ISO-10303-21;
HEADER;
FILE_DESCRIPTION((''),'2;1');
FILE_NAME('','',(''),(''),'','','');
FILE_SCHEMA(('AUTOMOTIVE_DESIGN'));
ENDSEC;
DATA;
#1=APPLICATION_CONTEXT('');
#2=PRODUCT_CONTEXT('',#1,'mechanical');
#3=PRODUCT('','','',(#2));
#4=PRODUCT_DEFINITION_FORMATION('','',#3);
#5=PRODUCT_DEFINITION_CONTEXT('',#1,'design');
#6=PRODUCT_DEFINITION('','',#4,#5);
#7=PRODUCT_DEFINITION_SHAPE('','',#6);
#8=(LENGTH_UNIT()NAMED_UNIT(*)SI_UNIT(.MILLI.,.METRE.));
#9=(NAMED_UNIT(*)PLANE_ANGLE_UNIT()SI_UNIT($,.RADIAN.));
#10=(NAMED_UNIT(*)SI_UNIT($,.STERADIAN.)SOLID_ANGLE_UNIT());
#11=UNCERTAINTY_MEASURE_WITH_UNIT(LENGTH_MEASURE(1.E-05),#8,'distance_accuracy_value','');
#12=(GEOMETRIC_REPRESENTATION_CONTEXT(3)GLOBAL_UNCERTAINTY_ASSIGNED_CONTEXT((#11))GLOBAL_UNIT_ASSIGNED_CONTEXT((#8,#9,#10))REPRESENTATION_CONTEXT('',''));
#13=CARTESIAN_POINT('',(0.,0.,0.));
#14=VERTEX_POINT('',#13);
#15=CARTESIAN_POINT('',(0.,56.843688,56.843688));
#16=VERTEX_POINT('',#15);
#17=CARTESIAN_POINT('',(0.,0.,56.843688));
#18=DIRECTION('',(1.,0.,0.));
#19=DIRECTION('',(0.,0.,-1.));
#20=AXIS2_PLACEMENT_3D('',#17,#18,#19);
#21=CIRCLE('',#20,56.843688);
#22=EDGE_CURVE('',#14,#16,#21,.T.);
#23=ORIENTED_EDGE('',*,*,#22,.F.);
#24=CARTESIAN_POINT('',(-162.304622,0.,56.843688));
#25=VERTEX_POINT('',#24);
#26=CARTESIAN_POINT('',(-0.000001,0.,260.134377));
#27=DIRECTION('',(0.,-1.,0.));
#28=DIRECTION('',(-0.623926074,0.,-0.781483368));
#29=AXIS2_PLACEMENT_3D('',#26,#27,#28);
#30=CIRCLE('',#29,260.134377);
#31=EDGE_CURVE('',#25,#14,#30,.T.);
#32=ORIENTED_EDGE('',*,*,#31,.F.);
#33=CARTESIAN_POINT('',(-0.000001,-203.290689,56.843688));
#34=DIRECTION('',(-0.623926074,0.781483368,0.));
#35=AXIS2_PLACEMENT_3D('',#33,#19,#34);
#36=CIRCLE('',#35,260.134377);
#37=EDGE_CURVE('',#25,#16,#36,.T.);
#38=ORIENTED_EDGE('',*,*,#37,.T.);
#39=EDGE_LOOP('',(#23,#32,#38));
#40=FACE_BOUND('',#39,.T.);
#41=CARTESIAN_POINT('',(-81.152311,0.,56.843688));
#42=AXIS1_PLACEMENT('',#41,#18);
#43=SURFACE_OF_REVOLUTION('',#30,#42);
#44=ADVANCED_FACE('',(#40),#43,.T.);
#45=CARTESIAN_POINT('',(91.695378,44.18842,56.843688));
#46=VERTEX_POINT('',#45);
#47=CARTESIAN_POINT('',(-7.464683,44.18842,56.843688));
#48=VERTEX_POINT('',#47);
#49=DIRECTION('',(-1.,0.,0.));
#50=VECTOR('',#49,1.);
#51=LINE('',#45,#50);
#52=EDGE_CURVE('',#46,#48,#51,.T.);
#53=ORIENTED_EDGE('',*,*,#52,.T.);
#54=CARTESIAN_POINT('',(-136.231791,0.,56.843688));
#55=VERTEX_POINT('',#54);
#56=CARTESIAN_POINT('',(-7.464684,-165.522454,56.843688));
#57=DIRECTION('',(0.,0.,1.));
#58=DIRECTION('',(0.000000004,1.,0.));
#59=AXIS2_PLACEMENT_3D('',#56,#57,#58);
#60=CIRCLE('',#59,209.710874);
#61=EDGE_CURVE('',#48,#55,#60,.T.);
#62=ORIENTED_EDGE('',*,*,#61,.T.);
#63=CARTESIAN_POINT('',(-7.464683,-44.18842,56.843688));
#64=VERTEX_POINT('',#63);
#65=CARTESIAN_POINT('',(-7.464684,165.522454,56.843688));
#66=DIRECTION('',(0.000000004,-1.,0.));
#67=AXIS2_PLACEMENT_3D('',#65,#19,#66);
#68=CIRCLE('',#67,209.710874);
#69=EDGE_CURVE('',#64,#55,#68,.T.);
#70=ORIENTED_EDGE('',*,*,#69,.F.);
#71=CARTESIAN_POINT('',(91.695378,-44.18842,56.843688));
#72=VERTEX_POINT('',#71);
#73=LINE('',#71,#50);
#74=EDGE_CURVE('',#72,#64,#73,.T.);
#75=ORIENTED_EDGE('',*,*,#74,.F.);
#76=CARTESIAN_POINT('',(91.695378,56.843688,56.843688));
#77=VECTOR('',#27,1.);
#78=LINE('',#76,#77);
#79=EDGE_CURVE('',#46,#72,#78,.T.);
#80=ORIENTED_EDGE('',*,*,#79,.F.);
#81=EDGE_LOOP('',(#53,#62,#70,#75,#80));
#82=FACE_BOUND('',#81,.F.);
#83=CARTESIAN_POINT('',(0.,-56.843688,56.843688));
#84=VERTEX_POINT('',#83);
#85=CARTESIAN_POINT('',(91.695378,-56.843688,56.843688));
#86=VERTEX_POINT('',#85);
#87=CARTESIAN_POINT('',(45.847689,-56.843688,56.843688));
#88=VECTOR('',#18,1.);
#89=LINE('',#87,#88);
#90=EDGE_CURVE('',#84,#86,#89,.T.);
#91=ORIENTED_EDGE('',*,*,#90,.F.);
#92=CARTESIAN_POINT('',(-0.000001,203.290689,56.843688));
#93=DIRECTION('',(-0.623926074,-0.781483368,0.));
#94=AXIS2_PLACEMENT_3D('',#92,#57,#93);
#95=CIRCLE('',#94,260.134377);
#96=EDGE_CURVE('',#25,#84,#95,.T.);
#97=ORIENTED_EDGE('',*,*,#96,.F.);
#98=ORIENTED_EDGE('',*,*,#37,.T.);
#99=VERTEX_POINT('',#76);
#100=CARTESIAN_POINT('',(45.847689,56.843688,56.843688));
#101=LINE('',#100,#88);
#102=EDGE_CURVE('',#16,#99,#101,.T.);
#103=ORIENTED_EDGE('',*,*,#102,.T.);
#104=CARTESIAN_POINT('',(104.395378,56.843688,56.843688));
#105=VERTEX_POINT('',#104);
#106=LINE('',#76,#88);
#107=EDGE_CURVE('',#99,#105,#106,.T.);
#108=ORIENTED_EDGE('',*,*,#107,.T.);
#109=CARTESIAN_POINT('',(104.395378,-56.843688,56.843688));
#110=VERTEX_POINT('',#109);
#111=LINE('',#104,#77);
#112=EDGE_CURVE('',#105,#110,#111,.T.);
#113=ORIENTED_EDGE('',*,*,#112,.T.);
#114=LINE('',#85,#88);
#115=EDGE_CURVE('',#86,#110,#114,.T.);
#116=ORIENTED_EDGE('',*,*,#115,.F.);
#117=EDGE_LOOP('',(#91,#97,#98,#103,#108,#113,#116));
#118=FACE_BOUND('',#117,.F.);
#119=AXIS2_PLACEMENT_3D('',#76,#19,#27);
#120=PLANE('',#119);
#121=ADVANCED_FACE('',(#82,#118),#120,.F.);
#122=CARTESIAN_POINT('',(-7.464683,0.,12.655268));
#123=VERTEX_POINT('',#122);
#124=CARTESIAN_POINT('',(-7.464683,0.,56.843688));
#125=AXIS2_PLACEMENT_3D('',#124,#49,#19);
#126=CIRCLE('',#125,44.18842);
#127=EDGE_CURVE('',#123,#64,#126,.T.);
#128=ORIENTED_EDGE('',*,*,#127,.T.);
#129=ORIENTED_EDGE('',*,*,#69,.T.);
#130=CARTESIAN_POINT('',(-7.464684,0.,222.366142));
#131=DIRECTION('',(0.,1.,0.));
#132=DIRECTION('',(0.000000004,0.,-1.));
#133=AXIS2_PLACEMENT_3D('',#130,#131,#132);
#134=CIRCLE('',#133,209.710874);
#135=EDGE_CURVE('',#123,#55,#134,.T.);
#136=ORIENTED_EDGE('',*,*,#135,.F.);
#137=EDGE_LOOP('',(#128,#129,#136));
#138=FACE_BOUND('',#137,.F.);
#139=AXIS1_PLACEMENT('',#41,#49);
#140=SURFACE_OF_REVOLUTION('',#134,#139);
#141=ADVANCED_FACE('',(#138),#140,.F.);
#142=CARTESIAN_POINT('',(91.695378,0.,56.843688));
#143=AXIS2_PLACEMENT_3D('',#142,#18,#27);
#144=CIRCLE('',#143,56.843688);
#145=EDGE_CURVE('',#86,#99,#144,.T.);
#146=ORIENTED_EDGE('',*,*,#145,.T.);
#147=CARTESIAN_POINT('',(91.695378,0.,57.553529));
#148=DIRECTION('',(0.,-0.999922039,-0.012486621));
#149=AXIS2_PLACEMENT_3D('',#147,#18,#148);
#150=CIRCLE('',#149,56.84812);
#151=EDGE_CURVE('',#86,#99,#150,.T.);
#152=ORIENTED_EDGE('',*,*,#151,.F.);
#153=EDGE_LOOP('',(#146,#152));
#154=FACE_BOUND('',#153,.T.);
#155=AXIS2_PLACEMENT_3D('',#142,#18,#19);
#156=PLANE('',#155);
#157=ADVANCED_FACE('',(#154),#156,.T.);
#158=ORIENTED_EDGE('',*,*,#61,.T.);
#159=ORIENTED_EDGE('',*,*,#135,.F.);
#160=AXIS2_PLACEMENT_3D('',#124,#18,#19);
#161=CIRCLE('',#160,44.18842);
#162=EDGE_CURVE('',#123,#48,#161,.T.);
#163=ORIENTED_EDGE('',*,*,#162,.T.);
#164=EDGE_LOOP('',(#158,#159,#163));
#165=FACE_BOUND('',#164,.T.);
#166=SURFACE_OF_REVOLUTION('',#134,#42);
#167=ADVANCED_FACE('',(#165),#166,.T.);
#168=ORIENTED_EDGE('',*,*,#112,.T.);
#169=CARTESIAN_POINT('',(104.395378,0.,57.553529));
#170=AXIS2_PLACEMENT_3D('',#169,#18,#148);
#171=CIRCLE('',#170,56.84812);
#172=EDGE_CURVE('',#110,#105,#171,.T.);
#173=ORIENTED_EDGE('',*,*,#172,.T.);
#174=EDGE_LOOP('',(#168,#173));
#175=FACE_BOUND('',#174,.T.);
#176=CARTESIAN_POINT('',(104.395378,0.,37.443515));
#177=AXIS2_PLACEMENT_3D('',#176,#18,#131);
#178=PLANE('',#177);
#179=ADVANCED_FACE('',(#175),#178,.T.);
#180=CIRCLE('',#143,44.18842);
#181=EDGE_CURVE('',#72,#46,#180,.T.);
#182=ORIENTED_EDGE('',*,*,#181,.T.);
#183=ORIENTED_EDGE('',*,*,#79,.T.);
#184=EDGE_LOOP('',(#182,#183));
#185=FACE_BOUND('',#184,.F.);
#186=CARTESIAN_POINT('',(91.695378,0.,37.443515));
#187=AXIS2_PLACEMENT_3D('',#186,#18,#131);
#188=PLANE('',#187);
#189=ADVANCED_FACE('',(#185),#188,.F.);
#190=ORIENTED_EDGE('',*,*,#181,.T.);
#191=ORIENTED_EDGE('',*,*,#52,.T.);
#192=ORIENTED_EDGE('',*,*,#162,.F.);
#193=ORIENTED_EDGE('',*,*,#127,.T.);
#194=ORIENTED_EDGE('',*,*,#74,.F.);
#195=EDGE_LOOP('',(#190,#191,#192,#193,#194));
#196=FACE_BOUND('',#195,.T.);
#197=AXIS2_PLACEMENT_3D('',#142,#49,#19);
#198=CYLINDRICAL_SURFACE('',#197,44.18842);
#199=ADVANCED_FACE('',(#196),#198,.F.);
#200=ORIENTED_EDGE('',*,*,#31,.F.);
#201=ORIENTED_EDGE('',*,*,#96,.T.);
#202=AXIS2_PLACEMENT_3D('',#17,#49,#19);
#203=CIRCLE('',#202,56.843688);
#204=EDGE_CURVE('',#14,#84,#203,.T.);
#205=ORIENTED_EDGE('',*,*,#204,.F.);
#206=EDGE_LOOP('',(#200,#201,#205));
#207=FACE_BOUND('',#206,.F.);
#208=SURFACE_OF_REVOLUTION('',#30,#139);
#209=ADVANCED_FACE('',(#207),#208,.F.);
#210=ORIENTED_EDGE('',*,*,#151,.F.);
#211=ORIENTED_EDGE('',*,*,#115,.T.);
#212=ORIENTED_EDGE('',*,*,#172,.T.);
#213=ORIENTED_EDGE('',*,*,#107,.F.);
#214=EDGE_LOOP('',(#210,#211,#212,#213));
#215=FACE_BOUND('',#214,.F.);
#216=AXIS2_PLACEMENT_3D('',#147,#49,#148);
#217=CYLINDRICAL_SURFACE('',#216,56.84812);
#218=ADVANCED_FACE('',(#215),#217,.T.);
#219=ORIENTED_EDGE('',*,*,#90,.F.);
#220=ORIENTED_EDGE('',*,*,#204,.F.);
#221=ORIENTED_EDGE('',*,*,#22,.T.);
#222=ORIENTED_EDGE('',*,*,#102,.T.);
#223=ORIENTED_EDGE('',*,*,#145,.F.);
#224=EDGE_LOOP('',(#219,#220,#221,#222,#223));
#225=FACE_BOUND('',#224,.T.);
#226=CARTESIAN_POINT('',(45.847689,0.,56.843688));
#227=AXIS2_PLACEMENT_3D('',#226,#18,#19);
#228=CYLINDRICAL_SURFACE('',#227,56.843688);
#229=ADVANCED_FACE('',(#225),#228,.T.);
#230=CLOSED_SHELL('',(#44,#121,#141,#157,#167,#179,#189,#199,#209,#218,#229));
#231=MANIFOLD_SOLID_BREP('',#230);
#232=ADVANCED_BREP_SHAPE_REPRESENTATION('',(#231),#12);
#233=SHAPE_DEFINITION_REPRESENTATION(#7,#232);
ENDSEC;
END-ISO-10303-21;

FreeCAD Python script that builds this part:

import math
import FreeCAD as App
import Part
import Sketcher

V = App.Vector
Q = App.Units.Quantity

doc = App.newDocument("Part")
params = doc.addObject("Spreadsheet::Sheet", "Params")
for row, (alias, value) in enumerate([
    ("sketch1_width", "10 in"),
    ("revolution_angle", "90 deg"),
    ("sketch2_width", "10 in"),
    ("revolution2_angle", "90 deg"),
    ("pad1_length", "0.5 in"),
], start=1):
    params.set(f"A{row}", alias)
    params.set(f"B{row}", "=" + value)
    params.setAlias(f"B{row}", alias)

body = doc.addObject("PartDesign::Body", "Body")

sketch1 = doc.addObject("Sketcher::SketchObject", "Sketch")
body.addObject(sketch1)
sketch1.AttachmentSupport = (doc.XZ_Plane, [""])
sketch1.MapMode = "FlatFace"
sketch1.addGeometry(Part.ArcOfCircle(Part.Circle(V(-7, 222, 0), V(0, 0, 1), 210), math.radians(-128), math.radians(-90)), False)
sketch1.addGeometry(Part.LineSegment(V(-136, 57, 0), V(-162, 57, 0)), False)
sketch1.addGeometry(Part.ArcOfCircle(Part.Circle(V(0, 260, 0), V(0, 0, 1), 260), math.radians(-129), math.radians(-90)), False)
sketch1.addGeometry(Part.LineSegment(V(0, 0, 0), V(92, 0, 0)), False)
sketch1.addGeometry(Part.LineSegment(V(92, 0, 0), V(92, 13, 0)), False)
sketch1.addGeometry(Part.LineSegment(V(92, 13, 0), V(-7, 13, 0)), False)
sketch1.addGeometry(Part.LineSegment(V(92, 57, 0), V(-162, 57, 0)), True)
sketch1.addConstraint(Sketcher.Constraint("Coincident", 0, 1, 1, 1))
sketch1.addConstraint(Sketcher.Constraint("Coincident", 1, 2, 2, 1))
sketch1.addConstraint(Sketcher.Constraint("Tangent", 2, 2, 3, 1))
sketch1.addConstraint(Sketcher.Constraint("Coincident", 3, 2, 4, 1))
sketch1.addConstraint(Sketcher.Constraint("Coincident", 4, 2, 5, 1))
sketch1.addConstraint(Sketcher.Constraint("Tangent", 5, 2, 0, 2))
sketch1.addConstraint(Sketcher.Constraint("Horizontal", 1))
sketch1.addConstraint(Sketcher.Constraint("Horizontal", 3))
sketch1.addConstraint(Sketcher.Constraint("Vertical", 4))
sketch1.addConstraint(Sketcher.Constraint("Horizontal", 5))
sketch1.addConstraint(Sketcher.Constraint("Horizontal", 6))
sketch1.addConstraint(Sketcher.Constraint("Coincident", 2, 2, -1, 1))
sketch1.addConstraint(Sketcher.Constraint("Coincident", 6, 2, 1, 2))
sketch1.addConstraint(Sketcher.Constraint("Vertical", 4, 2, 6, 1))
sketch1.addConstraint(Sketcher.Constraint("DistanceX", 6, 2, 6, 1, Q("10 in")))
sketch1.addConstraint(Sketcher.Constraint("Radius", 0, Q("209.710874 mm")))
sketch1.addConstraint(Sketcher.Constraint("Radius", 2, Q("260.134377 mm")))
sketch1.addConstraint(Sketcher.Constraint("DistanceX", 1, 2, 1, 1, Q("26.072831 mm")))
sketch1.addConstraint(Sketcher.Constraint("DistanceX", 3, 1, 3, 2, Q("91.695378 mm")))
sketch1.addConstraint(Sketcher.Constraint("DistanceX", 5, 2, 5, 1, Q("99.160061 mm")))
sketch1.setExpression("Constraints[14]", "Params.sketch1_width")
revolution = doc.addObject("PartDesign::Revolution", "Revolution")
body.addObject(revolution)
revolution.Profile = sketch1
revolution.ReferenceAxis = (sketch1, ["Axis0"])
revolution.setExpression("Angle", "Params.revolution_angle")

sketch2 = doc.addObject("Sketcher::SketchObject", "Sketch001")
body.addObject(sketch2)
sketch2.AttachmentSupport = (doc.XZ_Plane, [""])
sketch2.MapMode = "FlatFace"
sketch2.addGeometry(Part.ArcOfCircle(Part.Circle(V(-7, 222, 0), V(0, 0, 1), 210), math.radians(-128), math.radians(-90)), False)
sketch2.addGeometry(Part.LineSegment(V(-136, 57, 0), V(-162, 57, 0)), False)
sketch2.addGeometry(Part.ArcOfCircle(Part.Circle(V(0, 260, 0), V(0, 0, 1), 260), math.radians(-129), math.radians(-90)), False)
sketch2.addGeometry(Part.LineSegment(V(0, 0, 0), V(92, 0, 0)), False)
sketch2.addGeometry(Part.LineSegment(V(92, 0, 0), V(92, 13, 0)), False)
sketch2.addGeometry(Part.LineSegment(V(92, 13, 0), V(-7, 13, 0)), False)
sketch2.addGeometry(Part.LineSegment(V(-162, 57, 0), V(92, 57, 0)), True)
sketch2.addConstraint(Sketcher.Constraint("Coincident", 0, 1, 1, 1))
sketch2.addConstraint(Sketcher.Constraint("Coincident", 1, 2, 2, 1))
sketch2.addConstraint(Sketcher.Constraint("Tangent", 2, 2, 3, 1))
sketch2.addConstraint(Sketcher.Constraint("Coincident", 3, 2, 4, 1))
sketch2.addConstraint(Sketcher.Constraint("Coincident", 4, 2, 5, 1))
sketch2.addConstraint(Sketcher.Constraint("Tangent", 5, 2, 0, 2))
sketch2.addConstraint(Sketcher.Constraint("Horizontal", 1))
sketch2.addConstraint(Sketcher.Constraint("Horizontal", 3))
sketch2.addConstraint(Sketcher.Constraint("Vertical", 4))
sketch2.addConstraint(Sketcher.Constraint("Horizontal", 5))
sketch2.addConstraint(Sketcher.Constraint("Horizontal", 6))
sketch2.addConstraint(Sketcher.Constraint("Coincident", 2, 2, -1, 1))
sketch2.addConstraint(Sketcher.Constraint("Coincident", 6, 1, 1, 2))
sketch2.addConstraint(Sketcher.Constraint("Vertical", 4, 2, 6, 2))
sketch2.addConstraint(Sketcher.Constraint("DistanceX", 6, 1, 6, 2, Q("10 in")))
sketch2.addConstraint(Sketcher.Constraint("Radius", 0, Q("209.710874 mm")))
sketch2.addConstraint(Sketcher.Constraint("Radius", 2, Q("260.134377 mm")))
sketch2.addConstraint(Sketcher.Constraint("DistanceX", 1, 2, 1, 1, Q("26.072831 mm")))
sketch2.addConstraint(Sketcher.Constraint("DistanceX", 3, 1, 3, 2, Q("91.695378 mm")))
sketch2.addConstraint(Sketcher.Constraint("DistanceX", 5, 2, 5, 1, Q("99.160061 mm")))
sketch2.setExpression("Constraints[14]", "Params.sketch2_width")
revolution2 = doc.addObject("PartDesign::Revolution", "Revolution001")
body.addObject(revolution2)
revolution2.Profile = sketch2
revolution2.ReferenceAxis = (sketch2, ["Axis0"])
revolution2.setExpression("Angle", "Params.revolution2_angle")

sketch3 = doc.addObject("Sketcher::SketchObject", "Sketch002")
body.addObject(sketch3)
sketch3.AttachmentSupport = (doc.YZ_Plane, [""])
sketch3.MapMode = "FlatFace"
sketch3.AttachmentOffset = App.Placement(V(0, 0, 91.695378), App.Rotation())
sketch3.addGeometry(Part.LineSegment(V(57, 57, 0), V(-57, 57, 0)), False)
sketch3.addGeometry(Part.ArcOfCircle(Part.Circle(V(0, 58, 0), V(0, 0, 1), 57), math.radians(-179), math.radians(-1)), False)
sketch3.addConstraint(Sketcher.Constraint("Coincident", 0, 1, 1, 2))
sketch3.addConstraint(Sketcher.Constraint("Coincident", 1, 1, 0, 2))
sketch3.addConstraint(Sketcher.Constraint("Horizontal", 0))
sketch3.addConstraint(Sketcher.Constraint("PointOnObject", 1, 3, -2))
sketch3.addConstraint(Sketcher.Constraint("Radius", 1, Q("56.84812 mm")))
sketch3.addConstraint(Sketcher.Constraint("DistanceX", 0, 2, 0, 1, Q("113.687376 mm")))
sketch3.addConstraint(Sketcher.Constraint("DistanceY", -1, 1, 1, 3, Q("57.553529 mm")))
pad1 = doc.addObject("PartDesign::Pad", "Pad")
body.addObject(pad1)
pad1.Profile = sketch3
pad1.setExpression("Length", "Params.pad1_length")

doc.recompute()
